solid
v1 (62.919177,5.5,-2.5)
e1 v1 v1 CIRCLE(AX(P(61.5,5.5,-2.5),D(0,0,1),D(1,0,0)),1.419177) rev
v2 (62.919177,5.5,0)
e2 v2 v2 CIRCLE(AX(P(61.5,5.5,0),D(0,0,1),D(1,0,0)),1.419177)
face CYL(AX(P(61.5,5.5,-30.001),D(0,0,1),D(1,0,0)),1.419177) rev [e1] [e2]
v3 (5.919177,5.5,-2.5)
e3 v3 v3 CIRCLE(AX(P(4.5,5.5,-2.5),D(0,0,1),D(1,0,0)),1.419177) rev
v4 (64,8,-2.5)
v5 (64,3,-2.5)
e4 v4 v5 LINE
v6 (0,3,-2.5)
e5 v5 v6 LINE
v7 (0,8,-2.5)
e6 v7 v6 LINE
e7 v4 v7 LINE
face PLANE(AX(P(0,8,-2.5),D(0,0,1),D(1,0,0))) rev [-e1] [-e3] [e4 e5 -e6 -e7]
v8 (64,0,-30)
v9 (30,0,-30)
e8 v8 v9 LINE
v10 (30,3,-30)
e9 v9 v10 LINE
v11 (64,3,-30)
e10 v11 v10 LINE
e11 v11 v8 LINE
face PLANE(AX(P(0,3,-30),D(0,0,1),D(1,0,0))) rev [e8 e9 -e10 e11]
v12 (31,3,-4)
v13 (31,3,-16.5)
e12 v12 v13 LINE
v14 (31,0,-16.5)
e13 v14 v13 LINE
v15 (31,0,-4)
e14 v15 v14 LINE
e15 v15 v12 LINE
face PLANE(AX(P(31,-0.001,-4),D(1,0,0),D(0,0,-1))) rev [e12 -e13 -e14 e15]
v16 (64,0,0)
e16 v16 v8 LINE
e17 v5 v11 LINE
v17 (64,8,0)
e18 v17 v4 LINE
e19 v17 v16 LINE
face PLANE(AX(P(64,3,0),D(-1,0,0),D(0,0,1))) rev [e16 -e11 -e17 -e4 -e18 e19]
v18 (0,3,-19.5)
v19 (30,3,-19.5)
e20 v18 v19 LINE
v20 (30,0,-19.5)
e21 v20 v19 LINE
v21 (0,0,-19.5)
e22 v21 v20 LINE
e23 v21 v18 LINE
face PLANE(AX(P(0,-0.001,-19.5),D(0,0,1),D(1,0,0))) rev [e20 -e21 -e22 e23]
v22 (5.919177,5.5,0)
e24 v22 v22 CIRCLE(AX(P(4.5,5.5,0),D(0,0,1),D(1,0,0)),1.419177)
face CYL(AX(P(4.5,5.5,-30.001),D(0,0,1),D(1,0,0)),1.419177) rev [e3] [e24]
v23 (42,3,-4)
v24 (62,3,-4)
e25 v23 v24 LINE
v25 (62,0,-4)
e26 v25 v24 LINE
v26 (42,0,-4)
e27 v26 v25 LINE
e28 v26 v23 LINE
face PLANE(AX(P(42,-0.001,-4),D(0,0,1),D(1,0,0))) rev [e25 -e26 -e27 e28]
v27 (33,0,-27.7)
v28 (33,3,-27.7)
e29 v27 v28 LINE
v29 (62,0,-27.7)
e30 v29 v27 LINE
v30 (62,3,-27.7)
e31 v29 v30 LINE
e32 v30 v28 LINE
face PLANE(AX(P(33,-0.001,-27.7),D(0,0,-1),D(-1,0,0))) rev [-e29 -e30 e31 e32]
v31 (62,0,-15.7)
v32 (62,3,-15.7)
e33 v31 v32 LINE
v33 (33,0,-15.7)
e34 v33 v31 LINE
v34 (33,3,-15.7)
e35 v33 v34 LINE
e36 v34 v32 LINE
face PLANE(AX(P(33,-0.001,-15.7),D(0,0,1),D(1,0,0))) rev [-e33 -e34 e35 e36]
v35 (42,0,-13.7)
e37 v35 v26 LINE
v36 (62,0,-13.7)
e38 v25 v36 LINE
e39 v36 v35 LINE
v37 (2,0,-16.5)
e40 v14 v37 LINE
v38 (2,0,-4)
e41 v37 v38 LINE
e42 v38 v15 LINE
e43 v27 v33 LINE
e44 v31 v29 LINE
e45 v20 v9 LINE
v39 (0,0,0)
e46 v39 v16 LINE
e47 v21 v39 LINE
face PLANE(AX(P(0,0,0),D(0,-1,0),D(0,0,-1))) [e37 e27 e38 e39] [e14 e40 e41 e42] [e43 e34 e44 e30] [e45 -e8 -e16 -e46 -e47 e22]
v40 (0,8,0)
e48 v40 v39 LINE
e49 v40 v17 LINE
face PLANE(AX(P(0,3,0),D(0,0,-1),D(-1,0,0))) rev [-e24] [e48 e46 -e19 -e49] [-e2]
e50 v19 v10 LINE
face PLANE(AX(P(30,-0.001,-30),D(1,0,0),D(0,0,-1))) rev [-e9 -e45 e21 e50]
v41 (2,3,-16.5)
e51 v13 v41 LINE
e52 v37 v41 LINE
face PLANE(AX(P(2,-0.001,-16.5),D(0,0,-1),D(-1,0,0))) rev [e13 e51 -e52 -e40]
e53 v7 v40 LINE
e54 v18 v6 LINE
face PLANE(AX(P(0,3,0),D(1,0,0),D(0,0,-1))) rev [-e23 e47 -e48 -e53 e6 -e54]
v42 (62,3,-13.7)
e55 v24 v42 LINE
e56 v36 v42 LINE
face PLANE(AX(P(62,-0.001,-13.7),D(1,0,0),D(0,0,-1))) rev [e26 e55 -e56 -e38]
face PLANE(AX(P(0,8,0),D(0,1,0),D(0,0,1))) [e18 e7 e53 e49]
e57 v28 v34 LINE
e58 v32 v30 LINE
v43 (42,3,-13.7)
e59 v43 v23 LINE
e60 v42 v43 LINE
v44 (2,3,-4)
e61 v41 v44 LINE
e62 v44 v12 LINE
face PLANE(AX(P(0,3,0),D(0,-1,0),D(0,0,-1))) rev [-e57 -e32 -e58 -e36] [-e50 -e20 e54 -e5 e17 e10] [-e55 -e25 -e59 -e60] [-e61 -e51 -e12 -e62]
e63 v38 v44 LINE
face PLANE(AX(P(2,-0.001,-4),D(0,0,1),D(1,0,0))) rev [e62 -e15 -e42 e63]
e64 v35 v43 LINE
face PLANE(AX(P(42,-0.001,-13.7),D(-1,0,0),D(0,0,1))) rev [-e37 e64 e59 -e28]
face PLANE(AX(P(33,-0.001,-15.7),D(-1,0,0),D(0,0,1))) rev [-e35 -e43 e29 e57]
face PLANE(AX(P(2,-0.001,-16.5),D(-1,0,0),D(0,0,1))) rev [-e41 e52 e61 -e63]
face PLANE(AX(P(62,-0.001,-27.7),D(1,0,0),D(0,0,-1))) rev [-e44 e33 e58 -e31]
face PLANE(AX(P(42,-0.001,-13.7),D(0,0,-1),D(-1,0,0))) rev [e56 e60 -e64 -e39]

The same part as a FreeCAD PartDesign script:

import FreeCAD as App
import Part
import Sketcher


def add_polygon(sketch, points):
    """Adds a closed chain of lines whose ends are joined by coincident constraints."""
    first, n = sketch.GeometryCount, len(points)
    for a, b in zip(points, points[1:] + points[:1]):
        sketch.addGeometry(Part.LineSegment(App.Vector(*a, 0), App.Vector(*b, 0)), False)
    for i in range(n):
        sketch.addConstraint(Sketcher.Constraint("Coincident", first + i, 2, first + (i + 1) % n, 1))

doc = App.newDocument("Part")
params = doc.addObject("Spreadsheet::Sheet", "Params")
for row, (alias, value) in enumerate([
    ("sketch1_width", "64 mm"),
    ("sketch1_height", "30 mm"),
    ("pad1_length", "3 mm"),
    ("sketch2_width", "29 mm"),
    ("sketch2_height", "12.5 mm"),
    ("sketch3_width", "29 mm"),
    ("sketch3_height", "12 mm"),
    ("sketch4_width", "20 mm"),
    ("sketch4_height", "9.7 mm"),
    ("sketch5_width", "30 mm"),
    ("sketch5_height", "10.5 mm"),
    ("sketch6_width", "64 mm"),
    ("sketch6_height", "2.5 mm"),
    ("pad2_length", "5 mm"),
], start=1):
    params.set(f"A{row}", alias)
    params.set(f"B{row}", "=" + value)
    params.setAlias(f"B{row}", alias)

body = doc.addObject("PartDesign::Body", "Body")

# Sketch on XZ plane
sketch1 = body.newObject("Sketcher::SketchObject", "Sketch")
sketch1.AttachmentSupport = (doc.getObject("XZ_Plane"), [""])
sketch1.MapMode = "FlatFace"
add_polygon(sketch1, [(0, -30), (0, 0), (64, 0), (64, -30)])  # lines 0-3
sketch1.addConstraint([
    Sketcher.Constraint("Vertical", 0),
    Sketcher.Constraint("Horizontal", 1),
    Sketcher.Constraint("Vertical", 2),
    Sketcher.Constraint("Horizontal", 3),
    Sketcher.Constraint("Coincident", 0, 2, -1, 1),
    Sketcher.Constraint("DistanceX", 1, 1, 1, 2, 64.0),
    Sketcher.Constraint("DistanceY", 0, 1, 0, 2, 30.0),
])
sketch1.setExpression("Constraints[9]", "Params.sketch1_width")
sketch1.setExpression("Constraints[10]", "Params.sketch1_height")
pad1 = body.newObject("PartDesign::Pad", "Pad")
pad1.Profile = sketch1
pad1.setExpression("Length", "Params.pad1_length")
pad1.Reversed = True

# Sketch on XZ plane
sketch2 = body.newObject("Sketcher::SketchObject", "Sketch001")
sketch2.AttachmentSupport = (doc.getObject("XZ_Plane"), [""])
sketch2.MapMode = "FlatFace"
sketch2.AttachmentOffset = App.Placement(App.Vector(0, 0, -3), App.Rotation())
add_polygon(sketch2, [(2, -16), (2, -4), (31, -4), (31, -16)])  # lines 0-3
sketch2.addConstraint([
    Sketcher.Constraint("Vertical", 0),
    Sketcher.Constraint("Horizontal", 1),
    Sketcher.Constraint("Vertical", 2),
    Sketcher.Constraint("Horizontal", 3),
    Sketcher.Constraint("DistanceX", 1, 1, 1, 2, 29.0),
    Sketcher.Constraint("DistanceY", 0, 1, 0, 2, 12.5),
    Sketcher.Constraint("DistanceX", -1, 1, 0, 2, 2.0),
    Sketcher.Constraint("DistanceY", 0, 2, -1, 1, 4.0),
])
sketch2.setExpression("Constraints[8]", "Params.sketch2_width")
sketch2.setExpression("Constraints[9]", "Params.sketch2_height")
pocket1 = body.newObject("PartDesign::Pocket", "Pocket")
pocket1.Profile = sketch2
pocket1.Type = "UpToFirst"
pocket1.Reversed = True

# Sketch on XZ plane
sketch3 = body.newObject("Sketcher::SketchObject", "Sketch002")
sketch3.AttachmentSupport = (doc.getObject("XZ_Plane"), [""])
sketch3.MapMode = "FlatFace"
sketch3.AttachmentOffset = App.Placement(App.Vector(0, 0, -3), App.Rotation())
add_polygon(sketch3, [(33, -28), (33, -16), (62, -16), (62, -28)])  # lines 0-3
sketch3.addConstraint([
    Sketcher.Constraint("Vertical", 0),
    Sketcher.Constraint("Horizontal", 1),
    Sketcher.Constraint("Vertical", 2),
    Sketcher.Constraint("Horizontal", 3),
    Sketcher.Constraint("DistanceX", 1, 1, 1, 2, 29.0),
    Sketcher.Constraint("DistanceY", 0, 1, 0, 2, 12.0),
    Sketcher.Constraint("DistanceX", -1, 1, 0, 2, 33.0),
    Sketcher.Constraint("DistanceY", 0, 2, -1, 1, 15.7),
])
sketch3.setExpression("Constraints[8]", "Params.sketch3_width")
sketch3.setExpression("Constraints[9]", "Params.sketch3_height")
pocket2 = body.newObject("PartDesign::Pocket", "Pocket001")
pocket2.Profile = sketch3
pocket2.Type = "UpToFirst"
pocket2.Reversed = True

# Sketch on XZ plane
sketch4 = body.newObject("Sketcher::SketchObject", "Sketch003")
sketch4.AttachmentSupport = (doc.getObject("XZ_Plane"), [""])
sketch4.MapMode = "FlatFace"
sketch4.AttachmentOffset = App.Placement(App.Vector(0, 0, -3), App.Rotation())
add_polygon(sketch4, [(42, -14), (42, -4), (62, -4), (62, -14)])  # lines 0-3
sketch4.addConstraint([
    Sketcher.Constraint("Vertical", 0),
    Sketcher.Constraint("Horizontal", 1),
    Sketcher.Constraint("Vertical", 2),
    Sketcher.Constraint("Horizontal", 3),
    Sketcher.Constraint("DistanceX", 1, 1, 1, 2, 20.0),
    Sketcher.Constraint("DistanceY", 0, 1, 0, 2, 9.7),
    Sketcher.Constraint("DistanceX", -1, 1, 0, 2, 42.0),
    Sketcher.Constraint("DistanceY", 0, 2, -1, 1, 4.0),
])
sketch4.setExpression("Constraints[8]", "Params.sketch4_width")
sketch4.setExpression("Constraints[9]", "Params.sketch4_height")
pocket3 = body.newObject("PartDesign::Pocket", "Pocket002")
pocket3.Profile = sketch4
pocket3.Type = "UpToFirst"
pocket3.Reversed = True

# Sketch on XZ plane
sketch5 = body.newObject("Sketcher::SketchObject", "Sketch004")
sketch5.AttachmentSupport = (doc.getObject("XZ_Plane"), [""])
sketch5.MapMode = "FlatFace"
sketch5.AttachmentOffset = App.Placement(App.Vector(0, 0, -3), App.Rotation())
add_polygon(sketch5, [(0, -30), (0, -20), (30, -20), (30, -30)])  # lines 0-3
sketch5.addConstraint([
    Sketcher.Constraint("Vertical", 0),
    Sketcher.Constraint("Horizontal", 1),
    Sketcher.Constraint("Vertical", 2),
    Sketcher.Constraint("Horizontal", 3),
    Sketcher.Constraint("PointOnObject", 0, 2, -2),
    Sketcher.Constraint("DistanceX", 1, 1, 1, 2, 30.0),
    Sketcher.Constraint("DistanceY", 0, 1, 0, 2, 10.5),
    Sketcher.Constraint("DistanceY", 2, 2, -1, 1, 30.0),
])
sketch5.setExpression("Constraints[9]", "Params.sketch5_width")
sketch5.setExpression("Constraints[10]", "Params.sketch5_height")
pocket4 = body.newObject("PartDesign::Pocket", "Pocket003")
pocket4.Profile = sketch5
pocket4.Type = "UpToFirst"
pocket4.Reversed = True

# Sketch on XZ plane
sketch6 = body.newObject("Sketcher::SketchObject", "Sketch005")
sketch6.AttachmentSupport = (doc.getObject("XZ_Plane"), [""])
sketch6.MapMode = "FlatFace"
sketch6.AttachmentOffset = App.Placement(App.Vector(0, 0, -3), App.Rotation())
add_polygon(sketch6, [(0, -2.5), (0, 0), (64, 0), (64, -2.5)])  # lines 0-3
sketch6.addConstraint([
    Sketcher.Constraint("Vertical", 0),
    Sketcher.Constraint("Horizontal", 1),
    Sketcher.Constraint("Vertical", 2),
    Sketcher.Constraint("Horizontal", 3),
    Sketcher.Constraint("Coincident", 0, 2, -1, 1),
    Sketcher.Constraint("DistanceX", 1, 1, 1, 2, 64.0),
    Sketcher.Constraint("DistanceY", 0, 1, 0, 2, 2.5),
])
sketch6.setExpression("Constraints[9]", "Params.sketch6_width")
sketch6.setExpression("Constraints[10]", "Params.sketch6_height")
pad2 = body.newObject("PartDesign::Pad", "Pad001")
pad2.Profile = sketch6
pad2.setExpression("Length", "Params.pad2_length")
pad2.Reversed = True

# Sketch on XY plane
sketch7 = body.newObject("Sketcher::SketchObject", "Sketch006")
sketch7.AttachmentSupport = (doc.getObject("XY_Plane"), [""])
sketch7.MapMode = "FlatFace"
sketch7.addGeometry(Part.Circle(App.Vector(61.5, 5.5, 0), App.Vector(0, 0, 1), 1.4), False)
sketch7.addConstraint([
    Sketcher.Constraint("DistanceX", -1, 1, 0, 3, 61.5),
    Sketcher.Constraint("DistanceY", -1, 1, 0, 3, 5.5),
    Sketcher.Constraint("Diameter", 0, 2.838353),
])
pocket5 = body.newObject("PartDesign::Pocket", "Pocket004")
pocket5.Profile = sketch7
pocket5.Type = "UpToFirst"

# Sketch on XY plane
sketch8 = body.newObject("Sketcher::SketchObject", "Sketch007")
sketch8.AttachmentSupport = (doc.getObject("XY_Plane"), [""])
sketch8.MapMode = "FlatFace"
sketch8.addGeometry(Part.Circle(App.Vector(4.5, 5.5, 0), App.Vector(0, 0, 1), 1.4), False)
sketch8.addConstraint([
    Sketcher.Constraint("DistanceX", -1, 1, 0, 3, 4.5),
    Sketcher.Constraint("DistanceY", -1, 1, 0, 3, 5.5),
    Sketcher.Constraint("Diameter", 0, 2.838353),
])
pocket6 = body.newObject("PartDesign::Pocket", "Pocket005")
pocket6.Profile = sketch8
pocket6.Type = "UpToFirst"

doc.recompute()
